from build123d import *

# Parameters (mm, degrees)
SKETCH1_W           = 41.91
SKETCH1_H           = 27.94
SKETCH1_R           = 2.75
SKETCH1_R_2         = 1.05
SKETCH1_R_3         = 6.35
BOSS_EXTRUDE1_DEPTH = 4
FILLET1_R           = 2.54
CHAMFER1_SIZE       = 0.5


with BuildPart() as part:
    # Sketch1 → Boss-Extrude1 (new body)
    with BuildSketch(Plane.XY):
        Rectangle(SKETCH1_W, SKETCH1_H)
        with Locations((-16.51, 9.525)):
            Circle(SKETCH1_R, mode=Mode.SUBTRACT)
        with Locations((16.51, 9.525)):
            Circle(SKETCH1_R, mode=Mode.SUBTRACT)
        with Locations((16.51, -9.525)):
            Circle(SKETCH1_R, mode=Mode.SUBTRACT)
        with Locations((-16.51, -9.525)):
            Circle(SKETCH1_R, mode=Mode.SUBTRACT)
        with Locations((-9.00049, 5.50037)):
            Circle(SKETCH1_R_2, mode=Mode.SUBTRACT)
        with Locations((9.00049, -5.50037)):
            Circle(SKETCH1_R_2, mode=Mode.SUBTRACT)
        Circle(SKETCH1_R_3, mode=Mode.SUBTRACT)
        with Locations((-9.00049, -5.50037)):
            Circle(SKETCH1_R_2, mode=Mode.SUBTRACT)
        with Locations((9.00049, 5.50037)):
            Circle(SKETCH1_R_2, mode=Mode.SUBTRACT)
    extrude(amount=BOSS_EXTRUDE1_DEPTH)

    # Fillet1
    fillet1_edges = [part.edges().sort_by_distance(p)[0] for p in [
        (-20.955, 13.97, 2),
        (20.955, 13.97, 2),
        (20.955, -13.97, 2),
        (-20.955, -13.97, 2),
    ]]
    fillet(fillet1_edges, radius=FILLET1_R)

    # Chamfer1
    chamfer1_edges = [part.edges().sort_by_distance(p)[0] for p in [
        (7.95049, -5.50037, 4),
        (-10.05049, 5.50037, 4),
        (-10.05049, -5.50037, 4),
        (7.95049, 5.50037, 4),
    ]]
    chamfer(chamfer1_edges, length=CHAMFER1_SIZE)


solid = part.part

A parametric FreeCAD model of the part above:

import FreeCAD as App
import Part
import Sketcher
Q = App.Units.Quantity


def edges_at(feature, points):
    """Names of the edges that pass closest to the given points."""
    edges = feature.Shape.Edges
    near = lambda p: min(range(len(edges)), key=lambda i: edges[i].distToShape(Part.Vertex(*p))[0])
    return sorted({f"Edge{near(p) + 1}" for p in points})

doc = App.newDocument("Part")
params = doc.addObject("Spreadsheet::Sheet", "Params")
for row, (alias, value) in enumerate([
    ("sketch1_diameter", "5.5 mm"),
    ("sketch1_diameter2", "2.1 mm"),
    ("sketch1_diameter3", "12.7 mm"),
    ("sketch1_width", "41.91 mm"),
    ("sketch1_height", "27.94 mm"),
    ("pad1_length", "4 mm"),
    ("fillet_radius", "2.54 mm"),
    ("chamfer_size", "0.5 mm"),
], start=1):
    params.set(f"A{row}", alias)
    params.set(f"B{row}", "=" + value)
    params.setAlias(f"B{row}", alias)

body = doc.addObject("PartDesign::Body", "Body")

# Sketch on XY plane
sketch1 = body.newObject("Sketcher::SketchObject", "Sketch")
sketch1.AttachmentSupport = (doc.getObject("XY_Plane"), [""])
sketch1.MapMode = "FlatFace"
sketch1.addGeometry([
    Part.LineSegment(App.Vector(-21, 14, 0), App.Vector(-21, -14, 0)),  # 0
    Part.LineSegment(App.Vector(-21, -14, 0), App.Vector(21, -14, 0)),  # 1
    Part.LineSegment(App.Vector(21, -14, 0), App.Vector(21, 14, 0)),  # 2
    Part.LineSegment(App.Vector(21, 14, 0), App.Vector(-21, 14, 0)),  # 3
    Part.Circle(App.Vector(-16.5, -9.5, 0), App.Vector(0, 0, 1), 2.8),  # 4
    Part.Circle(App.Vector(-9, -5.5, 0), App.Vector(0, 0, 1), 1.1),  # 5
    Part.Circle(App.Vector(16.5, -9.5, 0), App.Vector(0, 0, 1), 2.8),  # 6
    Part.Circle(App.Vector(9, -5.5, 0), App.Vector(0, 0, 1), 1.1),  # 7
    Part.Circle(App.Vector(-9, 5.5, 0), App.Vector(0, 0, 1), 1.1),  # 8
    Part.Circle(App.Vector(-16.5, 9.5, 0), App.Vector(0, 0, 1), 2.8),  # 9
    Part.Circle(App.Vector(0, 0, 0), App.Vector(0, 0, 1), 6.3),  # 10
    Part.Circle(App.Vector(9, 5.5, 0), App.Vector(0, 0, 1), 1.1),  # 11
    Part.Circle(App.Vector(16.5, 9.5, 0), App.Vector(0, 0, 1), 2.8),  # 12
], False)
sketch1.addConstraint([
    Sketcher.Constraint("Coincident", 0, 2, 1, 1),
    Sketcher.Constraint("Coincident", 1, 2, 2, 1),
    Sketcher.Constraint("Coincident", 2, 2, 3, 1),
    Sketcher.Constraint("Coincident", 3, 2, 0, 1),
    Sketcher.Constraint("Vertical", 0),
    Sketcher.Constraint("Horizontal", 1),
    Sketcher.Constraint("Vertical", 2),
    Sketcher.Constraint("Horizontal", 3),
    Sketcher.Constraint("Coincident", 10, 3, -1, 1),
    Sketcher.Constraint("Equal", 4, 6),
    Sketcher.Constraint("Equal", 5, 7),
    Sketcher.Constraint("Equal", 7, 8),
    Sketcher.Constraint("Equal", 6, 9),
    Sketcher.Constraint("Equal", 8, 11),
    Sketcher.Constraint("Equal", 9, 12),
    Sketcher.Constraint("Symmetric", 7, 3, 8, 3, -1, 1),
    Sketcher.Constraint("Symmetric", 6, 3, 9, 3, -1, 1),
    Sketcher.Constraint("Symmetric", 5, 3, 11, 3, -1, 1),
    Sketcher.Constraint("Symmetric", 4, 3, 12, 3, -1, 1),
    Sketcher.Constraint("Symmetric", 0, 2, 2, 2, -1, 1),
    Sketcher.Constraint("Symmetric", 4, 3, 6, 3, -2),
    Sketcher.Constraint("Symmetric", 5, 3, 7, 3, -2),
    Sketcher.Constraint("Diameter", 4, Q("5.5 mm")),
    Sketcher.Constraint("Diameter", 5, Q("2.1 mm")),
    Sketcher.Constraint("Diameter", 10, Q("12.7 mm")),
    Sketcher.Constraint("DistanceX", 1, 1, 1, 2, Q("41.91 mm")),
    Sketcher.Constraint("DistanceY", 0, 2, 0, 1, Q("27.94 mm")),
    Sketcher.Constraint("DistanceX", 4, 3, -1, 1, Q("16.51 mm")),
    Sketcher.Constraint("DistanceY", 4, 3, 9, 3, Q("19.05 mm")),
    Sketcher.Constraint("DistanceX", 5, 3, -1, 1, Q("9.00049 mm")),
    Sketcher.Constraint("DistanceY", 5, 3, -1, 1, Q("5.50037 mm")),
])
sketch1.setExpression("Constraints[22]", "Params.sketch1_diameter")
sketch1.setExpression("Constraints[23]", "Params.sketch1_diameter2")
sketch1.setExpression("Constraints[24]", "Params.sketch1_diameter3")
sketch1.setExpression("Constraints[25]", "Params.sketch1_width")
sketch1.setExpression("Constraints[26]", "Params.sketch1_height")
pad1 = body.newObject("PartDesign::Pad", "Pad")
pad1.Profile = sketch1
pad1.setExpression("Length", "Params.pad1_length")
doc.recompute()

fillet = body.newObject("PartDesign::Fillet", "Fillet")
fillet.Base = (pad1, edges_at(pad1, [
    (-20.955, 13.97, 2),
    (20.955, 13.97, 2),
    (20.955, -13.97, 2),
    (-20.955, -13.97, 2),
]))
fillet.setExpression("Radius", "Params.fillet_radius")
doc.recompute()

chamfer = body.newObject("PartDesign::Chamfer", "Chamfer")
chamfer.Base = (fillet, edges_at(fillet, [
    (7.95, -5.5, 4),
    (-10.05, 5.5, 4),
    (-10.05, -5.5, 4),
    (7.95, 5.5, 4),
]))
chamfer.setExpression("Size", "Params.chamfer_size")

doc.recompute()
